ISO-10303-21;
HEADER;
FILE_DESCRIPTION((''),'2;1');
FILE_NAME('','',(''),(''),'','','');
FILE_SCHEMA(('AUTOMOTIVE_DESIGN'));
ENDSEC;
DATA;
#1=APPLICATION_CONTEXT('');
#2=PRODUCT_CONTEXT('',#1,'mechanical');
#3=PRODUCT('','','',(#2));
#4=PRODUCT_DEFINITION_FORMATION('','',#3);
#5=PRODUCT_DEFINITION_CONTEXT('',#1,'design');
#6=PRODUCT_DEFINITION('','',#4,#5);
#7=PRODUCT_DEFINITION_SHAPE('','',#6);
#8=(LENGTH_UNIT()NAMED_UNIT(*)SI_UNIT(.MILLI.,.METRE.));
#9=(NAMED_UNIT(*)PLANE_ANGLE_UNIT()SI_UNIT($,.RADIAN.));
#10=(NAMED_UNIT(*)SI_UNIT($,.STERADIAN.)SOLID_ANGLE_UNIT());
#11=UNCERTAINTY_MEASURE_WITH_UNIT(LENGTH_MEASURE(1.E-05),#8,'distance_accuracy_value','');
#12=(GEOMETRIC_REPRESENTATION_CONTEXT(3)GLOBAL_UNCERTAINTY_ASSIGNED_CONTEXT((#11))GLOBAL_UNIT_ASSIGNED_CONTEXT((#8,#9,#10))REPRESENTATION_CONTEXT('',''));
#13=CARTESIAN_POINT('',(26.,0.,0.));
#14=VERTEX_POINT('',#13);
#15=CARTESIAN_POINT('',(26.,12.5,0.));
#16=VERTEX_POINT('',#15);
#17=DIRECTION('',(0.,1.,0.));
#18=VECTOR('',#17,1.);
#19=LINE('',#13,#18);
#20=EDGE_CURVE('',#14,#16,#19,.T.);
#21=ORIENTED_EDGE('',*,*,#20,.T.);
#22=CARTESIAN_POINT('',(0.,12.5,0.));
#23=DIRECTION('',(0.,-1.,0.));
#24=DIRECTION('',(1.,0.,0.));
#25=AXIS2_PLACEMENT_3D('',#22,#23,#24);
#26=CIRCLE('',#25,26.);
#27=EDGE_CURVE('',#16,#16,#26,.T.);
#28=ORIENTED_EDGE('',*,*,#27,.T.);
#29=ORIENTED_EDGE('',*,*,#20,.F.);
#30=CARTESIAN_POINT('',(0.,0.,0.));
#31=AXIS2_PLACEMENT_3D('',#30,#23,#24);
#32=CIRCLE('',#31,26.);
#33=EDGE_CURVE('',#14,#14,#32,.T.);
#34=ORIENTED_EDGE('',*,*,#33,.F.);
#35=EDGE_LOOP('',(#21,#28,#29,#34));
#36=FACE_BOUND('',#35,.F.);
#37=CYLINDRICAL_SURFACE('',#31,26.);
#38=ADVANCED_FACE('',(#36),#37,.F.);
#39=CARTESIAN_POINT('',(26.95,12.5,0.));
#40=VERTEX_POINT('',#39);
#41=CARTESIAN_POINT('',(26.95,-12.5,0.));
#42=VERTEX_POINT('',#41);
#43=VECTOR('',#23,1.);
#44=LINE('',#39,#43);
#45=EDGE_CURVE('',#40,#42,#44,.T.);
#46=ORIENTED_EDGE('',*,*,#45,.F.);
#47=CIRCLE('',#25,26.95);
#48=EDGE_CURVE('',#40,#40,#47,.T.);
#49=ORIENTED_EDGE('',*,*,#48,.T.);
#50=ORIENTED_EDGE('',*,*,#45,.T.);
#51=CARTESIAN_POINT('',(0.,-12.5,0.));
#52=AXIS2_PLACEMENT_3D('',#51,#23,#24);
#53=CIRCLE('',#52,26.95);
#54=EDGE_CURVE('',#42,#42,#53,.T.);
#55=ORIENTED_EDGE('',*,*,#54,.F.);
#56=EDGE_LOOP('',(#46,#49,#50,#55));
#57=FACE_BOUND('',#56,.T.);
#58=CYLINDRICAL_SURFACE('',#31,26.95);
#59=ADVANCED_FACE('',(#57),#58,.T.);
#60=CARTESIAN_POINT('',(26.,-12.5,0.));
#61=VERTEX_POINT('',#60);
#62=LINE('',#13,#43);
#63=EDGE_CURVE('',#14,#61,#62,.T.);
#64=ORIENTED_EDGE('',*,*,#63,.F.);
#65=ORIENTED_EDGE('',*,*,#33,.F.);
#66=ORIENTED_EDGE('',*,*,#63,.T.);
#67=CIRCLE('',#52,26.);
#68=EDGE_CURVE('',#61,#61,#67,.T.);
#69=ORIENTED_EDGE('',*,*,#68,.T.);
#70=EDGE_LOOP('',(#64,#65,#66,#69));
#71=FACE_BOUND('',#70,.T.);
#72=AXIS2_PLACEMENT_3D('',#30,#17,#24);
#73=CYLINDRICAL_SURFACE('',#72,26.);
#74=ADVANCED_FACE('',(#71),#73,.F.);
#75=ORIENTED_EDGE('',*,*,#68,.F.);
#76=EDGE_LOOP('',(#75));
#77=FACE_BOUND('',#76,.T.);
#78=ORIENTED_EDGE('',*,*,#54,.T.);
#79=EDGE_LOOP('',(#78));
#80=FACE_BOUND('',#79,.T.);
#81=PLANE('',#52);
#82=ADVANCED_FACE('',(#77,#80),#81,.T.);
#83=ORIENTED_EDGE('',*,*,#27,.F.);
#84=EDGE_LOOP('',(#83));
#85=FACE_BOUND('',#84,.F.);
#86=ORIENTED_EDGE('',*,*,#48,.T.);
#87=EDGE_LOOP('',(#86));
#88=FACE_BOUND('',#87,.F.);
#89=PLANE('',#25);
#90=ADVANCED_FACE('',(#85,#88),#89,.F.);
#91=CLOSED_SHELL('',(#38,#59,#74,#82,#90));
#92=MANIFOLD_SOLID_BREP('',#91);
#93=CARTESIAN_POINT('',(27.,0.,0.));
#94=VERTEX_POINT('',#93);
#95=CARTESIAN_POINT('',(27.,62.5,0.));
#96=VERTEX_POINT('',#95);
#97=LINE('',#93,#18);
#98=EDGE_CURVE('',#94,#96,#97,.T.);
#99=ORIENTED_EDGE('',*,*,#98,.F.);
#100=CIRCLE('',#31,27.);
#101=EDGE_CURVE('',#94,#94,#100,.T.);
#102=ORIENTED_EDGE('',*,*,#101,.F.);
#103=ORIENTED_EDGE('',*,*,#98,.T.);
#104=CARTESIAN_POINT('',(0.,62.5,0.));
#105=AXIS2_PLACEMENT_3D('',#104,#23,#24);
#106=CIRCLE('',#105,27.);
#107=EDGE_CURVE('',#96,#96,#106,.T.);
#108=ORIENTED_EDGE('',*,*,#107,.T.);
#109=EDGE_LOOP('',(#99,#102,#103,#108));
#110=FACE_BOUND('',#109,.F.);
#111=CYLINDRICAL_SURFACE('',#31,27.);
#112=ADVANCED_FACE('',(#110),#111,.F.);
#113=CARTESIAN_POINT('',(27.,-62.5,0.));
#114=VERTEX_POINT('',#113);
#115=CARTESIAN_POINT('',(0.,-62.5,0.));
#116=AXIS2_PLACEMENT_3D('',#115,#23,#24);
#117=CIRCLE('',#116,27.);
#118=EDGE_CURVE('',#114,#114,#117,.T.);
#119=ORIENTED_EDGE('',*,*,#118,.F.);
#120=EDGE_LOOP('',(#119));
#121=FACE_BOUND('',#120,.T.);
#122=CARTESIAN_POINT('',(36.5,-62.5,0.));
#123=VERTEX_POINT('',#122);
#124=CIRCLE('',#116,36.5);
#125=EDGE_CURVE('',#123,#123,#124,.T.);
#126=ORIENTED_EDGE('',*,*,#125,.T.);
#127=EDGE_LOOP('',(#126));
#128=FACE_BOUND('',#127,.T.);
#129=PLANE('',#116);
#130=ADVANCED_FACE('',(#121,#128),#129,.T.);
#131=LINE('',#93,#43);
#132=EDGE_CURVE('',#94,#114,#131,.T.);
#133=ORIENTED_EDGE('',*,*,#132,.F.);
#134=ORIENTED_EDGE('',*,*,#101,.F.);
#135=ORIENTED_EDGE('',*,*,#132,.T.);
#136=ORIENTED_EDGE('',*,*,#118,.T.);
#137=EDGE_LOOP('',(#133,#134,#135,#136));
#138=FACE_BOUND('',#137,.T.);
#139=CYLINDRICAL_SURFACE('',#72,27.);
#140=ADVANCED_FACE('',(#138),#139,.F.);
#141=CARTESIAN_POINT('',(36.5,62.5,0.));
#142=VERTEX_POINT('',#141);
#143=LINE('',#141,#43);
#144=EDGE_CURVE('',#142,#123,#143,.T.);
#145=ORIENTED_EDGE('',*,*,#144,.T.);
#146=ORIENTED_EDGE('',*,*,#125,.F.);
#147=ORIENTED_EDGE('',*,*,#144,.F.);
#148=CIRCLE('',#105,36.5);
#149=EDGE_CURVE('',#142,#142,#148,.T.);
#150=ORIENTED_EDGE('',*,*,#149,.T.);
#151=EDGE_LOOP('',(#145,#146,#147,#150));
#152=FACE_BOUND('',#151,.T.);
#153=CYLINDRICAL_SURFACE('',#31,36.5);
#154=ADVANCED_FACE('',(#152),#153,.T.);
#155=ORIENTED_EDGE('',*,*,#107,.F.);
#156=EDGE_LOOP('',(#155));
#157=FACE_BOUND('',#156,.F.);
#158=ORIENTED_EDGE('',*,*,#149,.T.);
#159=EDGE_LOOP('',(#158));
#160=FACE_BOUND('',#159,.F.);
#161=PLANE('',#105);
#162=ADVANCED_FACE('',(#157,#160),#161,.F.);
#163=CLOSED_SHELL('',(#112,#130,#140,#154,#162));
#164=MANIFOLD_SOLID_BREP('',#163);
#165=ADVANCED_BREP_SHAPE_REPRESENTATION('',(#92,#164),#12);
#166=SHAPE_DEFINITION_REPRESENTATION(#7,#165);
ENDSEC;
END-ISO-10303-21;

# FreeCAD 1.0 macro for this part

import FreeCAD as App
import Part
import Sketcher
Q = App.Units.Quantity

doc = App.newDocument("Part")
body = doc.addObject("PartDesign::Body", "Body")

# Sketch on XZ plane
sketch1 = body.newObject("Sketcher::SketchObject", "Sketch")
sketch1.AttachmentSupport = (doc.getObject("XZ_Plane"), [""])
sketch1.MapMode = "FlatFace"
sketch1.addGeometry([
    Part.Circle(App.Vector(0, 0, 0), App.Vector(0, 0, 1), 36),
    Part.Circle(App.Vector(0, 0, 0), App.Vector(0, 0, 1), 27),
], False)
sketch1.addConstraint([
    Sketcher.Constraint("Coincident", 0, 3, -1, 1),
    Sketcher.Constraint("Coincident", 1, 3, -1, 1),
    Sketcher.Constraint("Diameter", 0, Q("73 mm")),
    Sketcher.Constraint("Diameter", 1, Q("54 mm")),
])
pad1 = body.newObject("PartDesign::Pad", "Pad")
pad1.Profile = sketch1
pad1.Type = "TwoLengths"
pad1.Length = 62.5
pad1.Length2 = 62.5
body2 = doc.addObject("PartDesign::Body", "Body001")

# Sketch on XZ plane
sketch2 = body2.newObject("Sketcher::SketchObject", "Sketch001")
sketch2.AttachmentSupport = (doc.getObject("XZ_Plane001"), [""])
sketch2.MapMode = "FlatFace"
sketch2.addGeometry([
    Part.Circle(App.Vector(0, 0, 0), App.Vector(0, 0, 1), 27),
    Part.Circle(App.Vector(0, 0, 0), App.Vector(0, 0, 1), 26),
], False)
sketch2.addConstraint([
    Sketcher.Constraint("Coincident", 0, 3, -1, 1),
    Sketcher.Constraint("Coincident", 1, 3, -1, 1),
    Sketcher.Constraint("Diameter", 1, Q("52 mm")),
    Sketcher.Constraint("Diameter", 0, Q("53.9 mm")),
])
pad2 = body2.newObject("PartDesign::Pad", "Pad001")
pad2.Profile = sketch2
pad2.Type = "TwoLengths"
pad2.Length = 12.5
pad2.Length2 = 12.5

doc.recompute()
